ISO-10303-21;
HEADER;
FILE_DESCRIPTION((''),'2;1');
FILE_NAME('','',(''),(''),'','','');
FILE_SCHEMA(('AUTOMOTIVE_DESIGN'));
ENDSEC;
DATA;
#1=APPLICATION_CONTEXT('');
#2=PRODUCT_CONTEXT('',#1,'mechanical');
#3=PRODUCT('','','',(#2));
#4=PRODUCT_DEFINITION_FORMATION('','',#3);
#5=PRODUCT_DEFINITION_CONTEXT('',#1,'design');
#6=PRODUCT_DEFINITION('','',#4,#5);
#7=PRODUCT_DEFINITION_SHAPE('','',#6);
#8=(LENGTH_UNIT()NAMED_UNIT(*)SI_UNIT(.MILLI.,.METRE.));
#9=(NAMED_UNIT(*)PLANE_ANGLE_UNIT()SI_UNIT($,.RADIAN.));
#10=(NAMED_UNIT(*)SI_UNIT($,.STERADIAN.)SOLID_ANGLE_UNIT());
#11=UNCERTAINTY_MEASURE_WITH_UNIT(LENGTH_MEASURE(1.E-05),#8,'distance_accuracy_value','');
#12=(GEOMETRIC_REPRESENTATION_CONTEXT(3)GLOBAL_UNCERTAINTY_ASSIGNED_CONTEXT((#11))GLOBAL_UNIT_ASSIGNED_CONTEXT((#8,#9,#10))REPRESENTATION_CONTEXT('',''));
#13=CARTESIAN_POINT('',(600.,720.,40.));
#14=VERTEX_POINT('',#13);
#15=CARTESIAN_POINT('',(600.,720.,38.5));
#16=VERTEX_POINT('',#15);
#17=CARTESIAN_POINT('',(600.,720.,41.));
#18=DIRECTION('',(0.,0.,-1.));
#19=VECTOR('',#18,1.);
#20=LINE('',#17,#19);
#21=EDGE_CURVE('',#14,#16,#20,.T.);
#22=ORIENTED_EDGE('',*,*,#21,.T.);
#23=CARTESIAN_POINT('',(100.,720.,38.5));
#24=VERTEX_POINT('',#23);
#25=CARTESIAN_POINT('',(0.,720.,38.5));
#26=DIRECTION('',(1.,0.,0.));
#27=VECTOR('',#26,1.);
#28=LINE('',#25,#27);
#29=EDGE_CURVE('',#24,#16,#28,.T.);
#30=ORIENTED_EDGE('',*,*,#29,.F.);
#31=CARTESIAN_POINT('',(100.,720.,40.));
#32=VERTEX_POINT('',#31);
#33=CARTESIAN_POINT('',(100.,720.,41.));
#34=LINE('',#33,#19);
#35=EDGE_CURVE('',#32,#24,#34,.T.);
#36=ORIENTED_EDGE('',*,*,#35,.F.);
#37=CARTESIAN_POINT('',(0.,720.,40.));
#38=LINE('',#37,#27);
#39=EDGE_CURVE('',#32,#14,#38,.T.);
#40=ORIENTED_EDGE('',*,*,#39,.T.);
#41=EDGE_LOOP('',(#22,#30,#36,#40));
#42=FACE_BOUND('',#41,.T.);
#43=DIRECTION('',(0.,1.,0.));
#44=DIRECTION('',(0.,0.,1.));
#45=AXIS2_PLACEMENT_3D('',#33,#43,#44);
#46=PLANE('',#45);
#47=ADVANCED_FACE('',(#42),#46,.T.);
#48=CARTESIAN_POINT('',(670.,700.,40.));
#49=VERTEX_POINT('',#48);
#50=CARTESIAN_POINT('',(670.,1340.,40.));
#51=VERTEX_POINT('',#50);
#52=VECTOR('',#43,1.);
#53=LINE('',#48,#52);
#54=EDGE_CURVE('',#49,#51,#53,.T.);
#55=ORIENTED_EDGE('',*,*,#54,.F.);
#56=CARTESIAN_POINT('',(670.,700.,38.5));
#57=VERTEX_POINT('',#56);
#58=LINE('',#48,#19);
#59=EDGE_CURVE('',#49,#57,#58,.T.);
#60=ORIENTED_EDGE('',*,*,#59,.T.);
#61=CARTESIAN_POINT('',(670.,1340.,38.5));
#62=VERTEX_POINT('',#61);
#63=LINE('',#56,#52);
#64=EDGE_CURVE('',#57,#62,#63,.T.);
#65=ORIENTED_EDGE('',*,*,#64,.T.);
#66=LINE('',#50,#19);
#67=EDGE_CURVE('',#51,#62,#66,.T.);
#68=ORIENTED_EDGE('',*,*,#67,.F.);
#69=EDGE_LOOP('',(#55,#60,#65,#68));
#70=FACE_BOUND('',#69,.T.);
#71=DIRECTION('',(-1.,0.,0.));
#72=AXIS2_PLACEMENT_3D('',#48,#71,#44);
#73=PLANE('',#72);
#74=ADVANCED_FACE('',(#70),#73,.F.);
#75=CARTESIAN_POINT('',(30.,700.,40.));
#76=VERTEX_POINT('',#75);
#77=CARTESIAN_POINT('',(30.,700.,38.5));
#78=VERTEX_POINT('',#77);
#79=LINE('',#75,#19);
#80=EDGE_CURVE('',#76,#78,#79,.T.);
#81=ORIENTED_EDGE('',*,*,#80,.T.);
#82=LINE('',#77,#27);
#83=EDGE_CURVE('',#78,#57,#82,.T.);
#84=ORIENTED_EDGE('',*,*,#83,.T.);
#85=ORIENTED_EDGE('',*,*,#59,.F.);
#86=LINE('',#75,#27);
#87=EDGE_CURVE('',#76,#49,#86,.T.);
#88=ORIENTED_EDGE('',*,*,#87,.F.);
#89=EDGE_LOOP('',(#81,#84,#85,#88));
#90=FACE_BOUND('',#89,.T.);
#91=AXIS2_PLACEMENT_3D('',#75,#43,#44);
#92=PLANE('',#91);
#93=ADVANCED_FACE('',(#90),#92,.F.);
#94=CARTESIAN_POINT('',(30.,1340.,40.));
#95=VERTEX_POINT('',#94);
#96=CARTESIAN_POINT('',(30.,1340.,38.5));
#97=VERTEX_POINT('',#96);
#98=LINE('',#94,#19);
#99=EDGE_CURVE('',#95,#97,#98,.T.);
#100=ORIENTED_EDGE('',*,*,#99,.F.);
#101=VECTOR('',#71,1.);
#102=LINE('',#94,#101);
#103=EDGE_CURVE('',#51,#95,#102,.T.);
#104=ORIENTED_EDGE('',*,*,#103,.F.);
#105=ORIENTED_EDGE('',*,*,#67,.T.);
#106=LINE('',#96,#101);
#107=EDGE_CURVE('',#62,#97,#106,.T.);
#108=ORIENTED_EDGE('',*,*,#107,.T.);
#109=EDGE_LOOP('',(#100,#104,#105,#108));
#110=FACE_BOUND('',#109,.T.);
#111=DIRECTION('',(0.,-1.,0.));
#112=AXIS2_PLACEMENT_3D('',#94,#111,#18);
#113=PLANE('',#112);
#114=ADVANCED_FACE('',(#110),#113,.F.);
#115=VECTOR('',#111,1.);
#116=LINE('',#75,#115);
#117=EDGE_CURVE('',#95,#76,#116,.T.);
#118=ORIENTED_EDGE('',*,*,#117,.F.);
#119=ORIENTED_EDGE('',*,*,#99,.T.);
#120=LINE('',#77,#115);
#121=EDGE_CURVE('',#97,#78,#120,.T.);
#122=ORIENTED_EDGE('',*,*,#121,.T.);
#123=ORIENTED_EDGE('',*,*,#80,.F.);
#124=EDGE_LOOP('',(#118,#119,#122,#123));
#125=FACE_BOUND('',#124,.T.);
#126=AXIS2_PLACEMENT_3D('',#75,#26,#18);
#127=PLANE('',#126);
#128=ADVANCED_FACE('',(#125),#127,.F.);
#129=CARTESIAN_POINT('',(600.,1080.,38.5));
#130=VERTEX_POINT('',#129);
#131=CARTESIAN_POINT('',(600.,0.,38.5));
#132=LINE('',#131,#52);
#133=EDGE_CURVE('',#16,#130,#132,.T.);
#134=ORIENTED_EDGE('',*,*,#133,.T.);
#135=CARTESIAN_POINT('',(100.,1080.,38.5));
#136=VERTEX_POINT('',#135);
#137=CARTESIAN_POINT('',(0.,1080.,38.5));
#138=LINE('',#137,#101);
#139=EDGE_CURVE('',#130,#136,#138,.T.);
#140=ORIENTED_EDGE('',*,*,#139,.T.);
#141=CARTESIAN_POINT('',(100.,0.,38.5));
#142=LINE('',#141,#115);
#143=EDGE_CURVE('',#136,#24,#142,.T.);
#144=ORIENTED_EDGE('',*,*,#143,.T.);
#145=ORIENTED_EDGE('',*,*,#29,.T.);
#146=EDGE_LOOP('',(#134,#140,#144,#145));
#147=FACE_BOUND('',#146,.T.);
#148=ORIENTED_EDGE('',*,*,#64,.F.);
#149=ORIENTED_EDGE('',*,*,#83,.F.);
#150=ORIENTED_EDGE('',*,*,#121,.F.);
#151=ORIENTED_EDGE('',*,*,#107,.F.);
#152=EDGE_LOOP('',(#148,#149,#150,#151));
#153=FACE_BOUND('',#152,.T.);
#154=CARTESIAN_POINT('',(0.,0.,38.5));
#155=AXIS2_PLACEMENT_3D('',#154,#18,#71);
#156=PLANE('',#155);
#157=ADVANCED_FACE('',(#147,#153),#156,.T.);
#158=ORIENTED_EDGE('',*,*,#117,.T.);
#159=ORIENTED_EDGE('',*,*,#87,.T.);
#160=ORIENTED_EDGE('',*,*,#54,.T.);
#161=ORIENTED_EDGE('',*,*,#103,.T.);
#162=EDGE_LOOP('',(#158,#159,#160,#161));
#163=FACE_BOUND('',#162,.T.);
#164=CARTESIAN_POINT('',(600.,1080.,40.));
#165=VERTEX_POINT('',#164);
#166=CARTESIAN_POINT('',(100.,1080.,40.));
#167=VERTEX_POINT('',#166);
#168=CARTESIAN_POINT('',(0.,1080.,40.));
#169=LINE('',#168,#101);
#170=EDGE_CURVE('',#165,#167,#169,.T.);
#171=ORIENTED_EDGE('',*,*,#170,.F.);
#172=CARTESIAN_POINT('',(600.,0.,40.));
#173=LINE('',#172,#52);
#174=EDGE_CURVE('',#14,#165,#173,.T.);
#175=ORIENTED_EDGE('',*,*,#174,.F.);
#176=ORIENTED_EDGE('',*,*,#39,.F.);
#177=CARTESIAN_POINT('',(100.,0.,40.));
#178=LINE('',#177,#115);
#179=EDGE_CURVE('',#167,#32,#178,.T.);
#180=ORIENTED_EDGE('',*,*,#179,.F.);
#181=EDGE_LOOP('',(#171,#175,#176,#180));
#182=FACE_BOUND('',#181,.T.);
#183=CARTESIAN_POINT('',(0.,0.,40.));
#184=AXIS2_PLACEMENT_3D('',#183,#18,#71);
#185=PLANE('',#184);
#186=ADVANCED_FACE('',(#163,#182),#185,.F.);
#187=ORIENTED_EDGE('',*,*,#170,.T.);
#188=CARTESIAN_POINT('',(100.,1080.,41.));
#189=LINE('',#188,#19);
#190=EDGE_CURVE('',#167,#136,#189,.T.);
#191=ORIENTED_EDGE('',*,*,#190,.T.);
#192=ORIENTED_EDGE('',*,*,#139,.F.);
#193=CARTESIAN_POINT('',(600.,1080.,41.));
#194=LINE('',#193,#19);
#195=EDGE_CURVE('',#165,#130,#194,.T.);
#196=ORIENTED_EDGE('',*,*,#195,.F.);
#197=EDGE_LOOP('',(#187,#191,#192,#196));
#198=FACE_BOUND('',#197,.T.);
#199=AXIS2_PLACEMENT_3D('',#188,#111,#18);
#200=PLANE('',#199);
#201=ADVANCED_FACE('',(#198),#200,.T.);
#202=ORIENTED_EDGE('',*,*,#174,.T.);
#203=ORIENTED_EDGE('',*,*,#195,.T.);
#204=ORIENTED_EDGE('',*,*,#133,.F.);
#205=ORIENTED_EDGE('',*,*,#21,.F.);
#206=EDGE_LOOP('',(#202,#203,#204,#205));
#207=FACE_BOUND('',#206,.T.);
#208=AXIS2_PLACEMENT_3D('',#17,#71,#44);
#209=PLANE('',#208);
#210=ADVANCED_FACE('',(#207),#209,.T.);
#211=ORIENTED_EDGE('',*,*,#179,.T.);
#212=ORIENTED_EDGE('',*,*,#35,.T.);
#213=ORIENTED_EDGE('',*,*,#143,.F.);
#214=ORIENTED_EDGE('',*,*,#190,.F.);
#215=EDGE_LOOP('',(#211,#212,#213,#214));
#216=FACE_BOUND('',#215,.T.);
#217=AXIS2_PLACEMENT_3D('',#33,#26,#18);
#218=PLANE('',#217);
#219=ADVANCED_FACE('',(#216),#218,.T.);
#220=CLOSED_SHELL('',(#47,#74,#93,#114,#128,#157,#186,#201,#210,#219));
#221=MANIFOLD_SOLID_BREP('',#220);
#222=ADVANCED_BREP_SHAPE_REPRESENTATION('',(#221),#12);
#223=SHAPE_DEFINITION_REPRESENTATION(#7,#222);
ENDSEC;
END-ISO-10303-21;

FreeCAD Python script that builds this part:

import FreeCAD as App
import Part
import Sketcher
from FreeCAD import Vector

doc = App.newDocument("Part")
body = doc.addObject("PartDesign::Body", "Body")

# Sketch on XY plane
sketch1 = body.newObject("Sketcher::SketchObject", "Sketch")
sketch1.AttachmentSupport = (doc.getObject("XY_Plane"), [""])
sketch1.MapMode = "FlatFace"
sketch1.AttachmentOffset = App.Placement(Vector(0, 0, 38.5), App.Rotation())
sketch1.addGeometry([
    Part.LineSegment(Vector(30, 1340, 0), Vector(30, 700, 0)),
    Part.LineSegment(Vector(30, 700, 0), Vector(670, 700, 0)),
    Part.LineSegment(Vector(670, 700, 0), Vector(670, 1340, 0)),
    Part.LineSegment(Vector(670, 1340, 0), Vector(30, 1340, 0)),
], False)
sketch1.addConstraint([
    Sketcher.Constraint("Coincident", 0, 2, 1, 1),
    Sketcher.Constraint("Coincident", 1, 2, 2, 1),
    Sketcher.Constraint("Coincident", 2, 2, 3, 1),
    Sketcher.Constraint("Coincident", 3, 2, 0, 1),
    Sketcher.Constraint("Vertical", 0),
    Sketcher.Constraint("Horizontal", 1),
    Sketcher.Constraint("Vertical", 2),
    Sketcher.Constraint("Horizontal", 3),
    Sketcher.Constraint("Equal", 3, 0),
    Sketcher.Constraint("DistanceX", 1, 1, 1, 2, 640.0),
    Sketcher.Constraint("DistanceX", -1, 1, 0, 2, 30.0),
    Sketcher.Constraint("DistanceY", -1, 1, 0, 2, 700.0),
])
pad1 = body.newObject("PartDesign::Pad", "Pad")
pad1.Profile = sketch1
pad1.Length = 1.5

# Sketch on XY plane
sketch2 = body.newObject("Sketcher::SketchObject", "Sketch001")
sketch2.AttachmentSupport = (doc.getObject("XY_Plane"), [""])
sketch2.MapMode = "FlatFace"
sketch2.AttachmentOffset = App.Placement(Vector(0, 0, 37.5), App.Rotation())
sketch2.addGeometry([
    Part.LineSegment(Vector(100, 1080, 0), Vector(100, 720, 0)),
    Part.LineSegment(Vector(100, 720, 0), Vector(600, 720, 0)),
    Part.LineSegment(Vector(600, 720, 0), Vector(600, 1080, 0)),
    Part.LineSegment(Vector(600, 1080, 0), Vector(100, 1080, 0)),
], False)
sketch2.addConstraint([
    Sketcher.Constraint("Coincident", 0, 2, 1, 1),
    Sketcher.Constraint("Coincident", 1, 2, 2, 1),
    Sketcher.Constraint("Coincident", 2, 2, 3, 1),
    Sketcher.Constraint("Coincident", 3, 2, 0, 1),
    Sketcher.Constraint("Vertical", 0),
    Sketcher.Constraint("Horizontal", 1),
    Sketcher.Constraint("Vertical", 2),
    Sketcher.Constraint("Horizontal", 3),
    Sketcher.Constraint("DistanceX", 1, 1, 1, 2, 500.0),
    Sketcher.Constraint("DistanceY", 0, 2, 0, 1, 360.0),
    Sketcher.Constraint("DistanceX", -1, 1, 0, 2, 100.0),
    Sketcher.Constraint("DistanceY", -1, 1, 0, 2, 720.0),
])
pocket1 = body.newObject("PartDesign::Pocket", "Pocket")
pocket1.Profile = sketch2
pocket1.Length = 3.5
pocket1.Reversed = True

doc.recompute()
